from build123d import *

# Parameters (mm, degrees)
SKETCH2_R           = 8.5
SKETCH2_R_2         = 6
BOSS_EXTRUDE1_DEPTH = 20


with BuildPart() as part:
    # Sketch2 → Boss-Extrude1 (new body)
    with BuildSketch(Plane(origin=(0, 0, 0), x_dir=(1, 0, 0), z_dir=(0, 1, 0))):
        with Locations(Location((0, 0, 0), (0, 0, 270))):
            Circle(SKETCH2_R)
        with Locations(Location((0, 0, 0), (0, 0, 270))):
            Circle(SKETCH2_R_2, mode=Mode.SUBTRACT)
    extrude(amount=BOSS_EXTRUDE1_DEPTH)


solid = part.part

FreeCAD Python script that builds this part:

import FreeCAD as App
import Part
import Sketcher
from FreeCAD import Vector
Q = App.Units.Quantity

doc = App.newDocument("Part")
params = doc.addObject("Spreadsheet::Sheet", "Params")
for row, (alias, value) in enumerate([
    ("sketch1_diameter", "17 mm"),
    ("sketch1_diameter2", "12 mm"),
    ("pad1_length", "20 mm"),
], start=1):
    params.set(f"A{row}", alias)
    params.set(f"B{row}", "=" + value)
    params.setAlias(f"B{row}", alias)

body = doc.addObject("PartDesign::Body", "Body")

# Sketch on XZ plane
sketch1 = body.newObject("Sketcher::SketchObject", "Sketch")
sketch1.AttachmentSupport = (doc.getObject("XZ_Plane"), [""])
sketch1.MapMode = "FlatFace"
sketch1.addGeometry([
    Part.Circle(Vector(0, 0, 0), Vector(0, 0, 1), 8.5),
    Part.Circle(Vector(0, 0, 0), Vector(0, 0, 1), 6),
], False)
sketch1.addConstraint([
    Sketcher.Constraint("Coincident", 0, 3, -1, 1),
    Sketcher.Constraint("Coincident", 1, 3, -1, 1),
    Sketcher.Constraint("Diameter", 0, Q("17 mm")),
    Sketcher.Constraint("Diameter", 1, Q("12 mm")),
])
sketch1.setExpression("Constraints[2]", "Params.sketch1_diameter")
sketch1.setExpression("Constraints[3]", "Params.sketch1_diameter2")
pad1 = body.newObject("PartDesign::Pad", "Pad")
pad1.Profile = sketch1
pad1.setExpression("Length", "Params.pad1_length")
pad1.Reversed = True

doc.recompute()
